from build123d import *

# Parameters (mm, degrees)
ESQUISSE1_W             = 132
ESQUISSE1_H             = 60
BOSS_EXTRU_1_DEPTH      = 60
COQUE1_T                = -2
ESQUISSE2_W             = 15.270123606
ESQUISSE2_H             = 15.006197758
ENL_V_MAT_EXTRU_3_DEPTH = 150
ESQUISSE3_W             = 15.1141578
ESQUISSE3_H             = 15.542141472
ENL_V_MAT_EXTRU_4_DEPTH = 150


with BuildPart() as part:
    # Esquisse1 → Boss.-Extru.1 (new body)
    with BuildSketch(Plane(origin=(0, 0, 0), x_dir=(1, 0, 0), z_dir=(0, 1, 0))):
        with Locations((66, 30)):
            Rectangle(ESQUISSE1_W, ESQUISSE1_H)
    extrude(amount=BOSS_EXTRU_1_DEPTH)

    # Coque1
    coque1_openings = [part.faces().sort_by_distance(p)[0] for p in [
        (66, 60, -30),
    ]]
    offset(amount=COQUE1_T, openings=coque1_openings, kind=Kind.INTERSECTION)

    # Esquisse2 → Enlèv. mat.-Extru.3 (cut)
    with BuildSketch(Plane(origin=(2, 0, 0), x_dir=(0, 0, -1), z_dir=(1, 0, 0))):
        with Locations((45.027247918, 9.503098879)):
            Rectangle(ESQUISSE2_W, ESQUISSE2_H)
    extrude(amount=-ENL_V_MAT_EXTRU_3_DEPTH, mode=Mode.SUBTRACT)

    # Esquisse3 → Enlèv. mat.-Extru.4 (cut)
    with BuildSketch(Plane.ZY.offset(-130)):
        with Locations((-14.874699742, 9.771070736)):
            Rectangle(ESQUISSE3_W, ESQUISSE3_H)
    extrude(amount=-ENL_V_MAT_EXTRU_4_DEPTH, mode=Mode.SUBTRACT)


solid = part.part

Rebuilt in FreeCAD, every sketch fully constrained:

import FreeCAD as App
import Part
import Sketcher
Q = App.Units.Quantity


def faces_at(feature, points):
    """Names of the faces that lie closest to the given points."""
    faces = feature.Shape.Faces
    near = lambda p: min(range(len(faces)), key=lambda i: faces[i].distToShape(Part.Vertex(*p))[0])
    return sorted({f"Face{near(p) + 1}" for p in points})

doc = App.newDocument("Part")
body = doc.addObject("PartDesign::Body", "Body")

sketch1 = body.newObject("Sketcher::SketchObject", "Sketch")
sketch1.AttachmentSupport = (doc.getObject("XZ_Plane"), [""])
sketch1.MapMode = "FlatFace"
sketch1.addGeometry([
    Part.LineSegment(App.Vector(0, -60, 0), App.Vector(0, 0, 0)),
    Part.LineSegment(App.Vector(0, 0, 0), App.Vector(132, 0, 0)),
    Part.LineSegment(App.Vector(132, 0, 0), App.Vector(132, -60, 0)),
    Part.LineSegment(App.Vector(132, -60, 0), App.Vector(0, -60, 0)),
], False)
sketch1.addConstraint([
    Sketcher.Constraint("Coincident", 0, 2, 1, 1),
    Sketcher.Constraint("Coincident", 1, 2, 2, 1),
    Sketcher.Constraint("Coincident", 2, 2, 3, 1),
    Sketcher.Constraint("Coincident", 3, 2, 0, 1),
    Sketcher.Constraint("Vertical", 0),
    Sketcher.Constraint("Horizontal", 1),
    Sketcher.Constraint("Vertical", 2),
    Sketcher.Constraint("Horizontal", 3),
    Sketcher.Constraint("Coincident", 0, 2, -1, 1),
    Sketcher.Constraint("DistanceX", 1, 1, 1, 2, Q("132 mm")),
    Sketcher.Constraint("DistanceY", 0, 1, 0, 2, Q("60 mm")),
])
pad1 = body.newObject("PartDesign::Pad", "Pad")
pad1.Profile = sketch1
pad1.Length = 60
pad1.Reversed = True
doc.recompute()

thickness = body.newObject("PartDesign::Thickness", "Thickness")
thickness.Base = (pad1, faces_at(pad1, [(66, 60, -30)]))
thickness.Value = 2
thickness.Reversed = True
thickness.Join = "Intersection"

sketch2 = body.newObject("Sketcher::SketchObject", "Sketch001")
sketch2.AttachmentSupport = (doc.getObject("YZ_Plane"), [""])
sketch2.MapMode = "FlatFace"
sketch2.AttachmentOffset = App.Placement(App.Vector(0, 0, 2), App.Rotation())
sketch2.addGeometry([
    Part.LineSegment(App.Vector(17, -37, 0), App.Vector(2, -37, 0)),
    Part.LineSegment(App.Vector(2, -37, 0), App.Vector(2, -53, 0)),
    Part.LineSegment(App.Vector(2, -53, 0), App.Vector(17, -53, 0)),
    Part.LineSegment(App.Vector(17, -53, 0), App.Vector(17, -37, 0)),
], False)
sketch2.addConstraint([
    Sketcher.Constraint("Coincident", 0, 2, 1, 1),
    Sketcher.Constraint("Coincident", 1, 2, 2, 1),
    Sketcher.Constraint("Coincident", 2, 2, 3, 1),
    Sketcher.Constraint("Coincident", 3, 2, 0, 1),
    Sketcher.Constraint("Horizontal", 0),
    Sketcher.Constraint("Vertical", 1),
    Sketcher.Constraint("Horizontal", 2),
    Sketcher.Constraint("Vertical", 3),
    Sketcher.Constraint("DistanceX", -1, 1, 0, 2, Q("2 mm")),
    Sketcher.Constraint("DistanceX", 0, 2, 0, 1, Q("15.006198 mm")),
    Sketcher.Constraint("DistanceY", 1, 2, 1, 1, Q("15.270124 mm")),
    Sketcher.Constraint("DistanceY", 1, 2, -1, 1, Q("52.66231 mm")),
])
pocket1 = body.newObject("PartDesign::Pocket", "Pocket")
pocket1.Profile = sketch2
pocket1.Length = 150

sketch3 = body.newObject("Sketcher::SketchObject", "Sketch002")
sketch3.AttachmentSupport = (doc.getObject("YZ_Plane"), [""])
sketch3.MapMode = "FlatFace"
sketch3.AttachmentOffset = App.Placement(App.Vector(0, 0, 130), App.Rotation())
sketch3.addGeometry([
    Part.LineSegment(App.Vector(18, -22, 0), App.Vector(2, -22, 0)),
    Part.LineSegment(App.Vector(2, -22, 0), App.Vector(2, -7, 0)),
    Part.LineSegment(App.Vector(2, -7, 0), App.Vector(18, -7, 0)),
    Part.LineSegment(App.Vector(18, -7, 0), App.Vector(18, -22, 0)),
], False)
sketch3.addConstraint([
    Sketcher.Constraint("Coincident", 0, 2, 1, 1),
    Sketcher.Constraint("Coincident", 1, 2, 2, 1),
    Sketcher.Constraint("Coincident", 2, 2, 3, 1),
    Sketcher.Constraint("Coincident", 3, 2, 0, 1),
    Sketcher.Constraint("Horizontal", 0),
    Sketcher.Constraint("Vertical", 1),
    Sketcher.Constraint("Horizontal", 2),
    Sketcher.Constraint("Vertical", 3),
    Sketcher.Constraint("DistanceX", -1, 1, 0, 2, Q("2 mm")),
    Sketcher.Constraint("DistanceX", 0, 2, 0, 1, Q("15.542141 mm")),
    Sketcher.Constraint("DistanceY", 1, 1, 1, 2, Q("15.114158 mm")),
    Sketcher.Constraint("DistanceY", 0, 2, -1, 1, Q("22.431779 mm")),
])
pocket2 = body.newObject("PartDesign::Pocket", "Pocket001")
pocket2.Profile = sketch3
pocket2.Length = 150
pocket2.Reversed = True

doc.recompute()
